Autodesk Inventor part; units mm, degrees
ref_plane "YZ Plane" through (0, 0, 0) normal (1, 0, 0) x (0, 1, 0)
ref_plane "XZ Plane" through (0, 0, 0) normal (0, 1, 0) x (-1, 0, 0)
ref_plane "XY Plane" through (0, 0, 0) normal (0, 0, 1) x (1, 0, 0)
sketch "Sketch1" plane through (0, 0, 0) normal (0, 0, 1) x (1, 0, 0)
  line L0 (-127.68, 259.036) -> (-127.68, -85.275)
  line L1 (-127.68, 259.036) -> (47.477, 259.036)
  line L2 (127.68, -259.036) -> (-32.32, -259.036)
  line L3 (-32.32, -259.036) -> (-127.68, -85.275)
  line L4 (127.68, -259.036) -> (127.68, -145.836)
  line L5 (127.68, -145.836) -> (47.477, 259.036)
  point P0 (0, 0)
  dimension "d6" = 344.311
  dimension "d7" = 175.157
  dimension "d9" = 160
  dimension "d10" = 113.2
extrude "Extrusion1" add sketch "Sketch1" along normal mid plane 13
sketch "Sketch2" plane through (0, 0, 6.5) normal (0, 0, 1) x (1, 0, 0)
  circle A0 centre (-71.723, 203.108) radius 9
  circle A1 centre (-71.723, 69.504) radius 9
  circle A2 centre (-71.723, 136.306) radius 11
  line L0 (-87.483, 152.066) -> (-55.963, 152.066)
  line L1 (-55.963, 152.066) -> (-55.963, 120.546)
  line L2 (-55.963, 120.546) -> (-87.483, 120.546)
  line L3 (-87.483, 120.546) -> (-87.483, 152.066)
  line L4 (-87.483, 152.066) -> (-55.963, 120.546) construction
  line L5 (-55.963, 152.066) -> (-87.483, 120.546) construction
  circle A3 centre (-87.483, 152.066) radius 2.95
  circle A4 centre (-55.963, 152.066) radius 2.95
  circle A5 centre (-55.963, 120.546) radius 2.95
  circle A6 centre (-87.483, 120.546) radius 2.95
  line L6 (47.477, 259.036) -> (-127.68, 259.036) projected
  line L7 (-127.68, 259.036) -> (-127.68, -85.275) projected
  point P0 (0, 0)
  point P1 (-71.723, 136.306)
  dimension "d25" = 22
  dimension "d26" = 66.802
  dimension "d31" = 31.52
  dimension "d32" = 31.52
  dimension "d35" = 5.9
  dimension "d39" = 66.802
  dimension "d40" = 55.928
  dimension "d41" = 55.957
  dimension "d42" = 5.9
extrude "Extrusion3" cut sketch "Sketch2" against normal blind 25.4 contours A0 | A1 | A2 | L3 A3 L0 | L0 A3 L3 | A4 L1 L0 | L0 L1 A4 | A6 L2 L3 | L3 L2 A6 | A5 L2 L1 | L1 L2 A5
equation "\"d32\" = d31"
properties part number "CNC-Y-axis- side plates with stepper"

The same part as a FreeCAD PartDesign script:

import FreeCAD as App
import Part
import Sketcher
from FreeCAD import Vector
Q = App.Units.Quantity

doc = App.newDocument("Part")
params = doc.addObject("Spreadsheet::Sheet", "Params")
for row, (alias, value) in enumerate([
    ("sketch1_width", "160 mm"),
    ("sketch1_height", "113.2 mm"),
    ("pad1_length", "13 mm"),
    ("sketch2_diameter", "22 mm"),
    ("sketch2_diameter2", "5.9 mm"),
    ("sketch2_diameter3", "18 mm"),
    ("pocket1_length", "25.4 mm"),
], start=1):
    params.set(f"A{row}", alias)
    params.set(f"B{row}", "=" + value)
    params.setAlias(f"B{row}", alias)

body = doc.addObject("PartDesign::Body", "Body")

# Sketch on XY plane
sketch1 = body.newObject("Sketcher::SketchObject", "Sketch")
sketch1.AttachmentSupport = (doc.getObject("XY_Plane"), [""])
sketch1.MapMode = "FlatFace"
sketch1.addGeometry(Part.LineSegment(Vector(47, 259, 0), Vector(-128, 259, 0)), False)
sketch1.addGeometry(Part.LineSegment(Vector(-128, 259, 0), Vector(-128, -85, 0)), False)
sketch1.addGeometry(Part.LineSegment(Vector(-128, -85, 0), Vector(-32, -259, 0)), False)
sketch1.addGeometry(Part.LineSegment(Vector(-32, -259, 0), Vector(128, -259, 0)), False)
sketch1.addGeometry(Part.LineSegment(Vector(128, -259, 0), Vector(128, -146, 0)), False)
sketch1.addGeometry(Part.LineSegment(Vector(128, -146, 0), Vector(47, 259, 0)), False)
sketch1.addConstraint(Sketcher.Constraint("Coincident", 0, 2, 1, 1))
sketch1.addConstraint(Sketcher.Constraint("Coincident", 1, 2, 2, 1))
sketch1.addConstraint(Sketcher.Constraint("Coincident", 2, 2, 3, 1))
sketch1.addConstraint(Sketcher.Constraint("Coincident", 3, 2, 4, 1))
sketch1.addConstraint(Sketcher.Constraint("Coincident", 4, 2, 5, 1))
sketch1.addConstraint(Sketcher.Constraint("Coincident", 5, 2, 0, 1))
sketch1.addConstraint(Sketcher.Constraint("Horizontal", 0))
sketch1.addConstraint(Sketcher.Constraint("Vertical", 1))
sketch1.addConstraint(Sketcher.Constraint("Horizontal", 3))
sketch1.addConstraint(Sketcher.Constraint("Vertical", 4))
sketch1.addConstraint(Sketcher.Constraint("Symmetric", 0, 2, 3, 2, -1, 1))
sketch1.addConstraint(Sketcher.Constraint("DistanceX", 3, 1, 3, 2, Q("160 mm")))
sketch1.addConstraint(Sketcher.Constraint("DistanceY", 4, 1, 4, 2, Q("113.2 mm")))
sketch1.addConstraint(Sketcher.Constraint("DistanceX", 0, 2, 0, 1, Q("175.157 mm")))
sketch1.addConstraint(Sketcher.Constraint("DistanceY", 1, 2, 1, 1, Q("344.311 mm")))
sketch1.addConstraint(Sketcher.Constraint("DistanceX", 0, 2, -1, 1, Q("127.68 mm")))
sketch1.addConstraint(Sketcher.Constraint("Distance", 2, Q("198.208 mm")))
sketch1.setExpression("Constraints[11]", "Params.sketch1_width")
sketch1.setExpression("Constraints[12]", "Params.sketch1_height")
pad1 = body.newObject("PartDesign::Pad", "Pad")
pad1.Profile = sketch1
pad1.setExpression("Length", "Params.pad1_length")
pad1.Midplane = True

# Sketch on XY plane
sketch2 = body.newObject("Sketcher::SketchObject", "Sketch001")
sketch2.AttachmentSupport = (doc.getObject("XY_Plane"), [""])
sketch2.MapMode = "FlatFace"
sketch2.AttachmentOffset = App.Placement(Vector(0, 0, 6.5), App.Rotation())
sketch2.addGeometry(Part.Circle(Vector(-71.7, 203.1, 0), Vector(0, 0, 1), 9), False)
sketch2.addGeometry(Part.Circle(Vector(-71.7, 69.5, 0), Vector(0, 0, 1), 9), False)
sketch2.addGeometry(Part.Circle(Vector(-71.7, 136.3, 0), Vector(0, 0, 1), 11), False)
sketch2.addGeometry(Part.Circle(Vector(-87.5, 152.1, 0), Vector(0, 0, 1), 3), False)
sketch2.addGeometry(Part.Circle(Vector(-56, 152.1, 0), Vector(0, 0, 1), 3), False)
sketch2.addGeometry(Part.Circle(Vector(-87.5, 120.5, 0), Vector(0, 0, 1), 3), False)
sketch2.addGeometry(Part.Circle(Vector(-56, 120.5, 0), Vector(0, 0, 1), 3), False)
sketch2.addConstraint(Sketcher.Constraint("Equal", 0, 1))
sketch2.addConstraint(Sketcher.Constraint("Equal", 3, 4))
sketch2.addConstraint(Sketcher.Constraint("Equal", 4, 5))
sketch2.addConstraint(Sketcher.Constraint("Equal", 5, 6))
sketch2.addConstraint(Sketcher.Constraint("Horizontal", 3, 3, 4, 3))
sketch2.addConstraint(Sketcher.Constraint("Horizontal", 5, 3, 6, 3))
sketch2.addConstraint(Sketcher.Constraint("Vertical", 0, 3, 1, 3))
sketch2.addConstraint(Sketcher.Constraint("Vertical", 1, 3, 2, 3))
sketch2.addConstraint(Sketcher.Constraint("Vertical", 3, 3, 5, 3))
sketch2.addConstraint(Sketcher.Constraint("Vertical", 4, 3, 6, 3))
sketch2.addConstraint(Sketcher.Constraint("Diameter", 2, Q("22 mm")))
sketch2.addConstraint(Sketcher.Constraint("Diameter", 3, Q("5.9 mm")))
sketch2.addConstraint(Sketcher.Constraint("Diameter", 0, Q("18 mm")))
sketch2.addConstraint(Sketcher.Constraint("DistanceX", 3, 3, 4, 3, Q("31.52 mm")))
sketch2.addConstraint(Sketcher.Constraint("DistanceY", 5, 3, 3, 3, Q("31.52 mm")))
sketch2.addConstraint(Sketcher.Constraint("DistanceY", 2, 3, 0, 3, Q("66.802 mm")))
sketch2.addConstraint(Sketcher.Constraint("DistanceY", 1, 3, 2, 3, Q("66.802 mm")))
sketch2.addConstraint(Sketcher.Constraint("DistanceX", 3, 3, 2, 3, Q("15.76 mm")))
sketch2.addConstraint(Sketcher.Constraint("DistanceY", 2, 3, 3, 3, Q("15.76 mm")))
sketch2.addConstraint(Sketcher.Constraint("DistanceX", 0, 3, -1, 1, Q("71.723 mm")))
sketch2.addConstraint(Sketcher.Constraint("DistanceY", -1, 1, 0, 3, Q("203.108 mm")))
sketch2.setExpression("Constraints[10]", "Params.sketch2_diameter")
sketch2.setExpression("Constraints[11]", "Params.sketch2_diameter2")
sketch2.setExpression("Constraints[12]", "Params.sketch2_diameter3")
pocket1 = body.newObject("PartDesign::Pocket", "Pocket")
pocket1.Profile = sketch2
pocket1.setExpression("Length", "Params.pocket1_length")

doc.recompute()
